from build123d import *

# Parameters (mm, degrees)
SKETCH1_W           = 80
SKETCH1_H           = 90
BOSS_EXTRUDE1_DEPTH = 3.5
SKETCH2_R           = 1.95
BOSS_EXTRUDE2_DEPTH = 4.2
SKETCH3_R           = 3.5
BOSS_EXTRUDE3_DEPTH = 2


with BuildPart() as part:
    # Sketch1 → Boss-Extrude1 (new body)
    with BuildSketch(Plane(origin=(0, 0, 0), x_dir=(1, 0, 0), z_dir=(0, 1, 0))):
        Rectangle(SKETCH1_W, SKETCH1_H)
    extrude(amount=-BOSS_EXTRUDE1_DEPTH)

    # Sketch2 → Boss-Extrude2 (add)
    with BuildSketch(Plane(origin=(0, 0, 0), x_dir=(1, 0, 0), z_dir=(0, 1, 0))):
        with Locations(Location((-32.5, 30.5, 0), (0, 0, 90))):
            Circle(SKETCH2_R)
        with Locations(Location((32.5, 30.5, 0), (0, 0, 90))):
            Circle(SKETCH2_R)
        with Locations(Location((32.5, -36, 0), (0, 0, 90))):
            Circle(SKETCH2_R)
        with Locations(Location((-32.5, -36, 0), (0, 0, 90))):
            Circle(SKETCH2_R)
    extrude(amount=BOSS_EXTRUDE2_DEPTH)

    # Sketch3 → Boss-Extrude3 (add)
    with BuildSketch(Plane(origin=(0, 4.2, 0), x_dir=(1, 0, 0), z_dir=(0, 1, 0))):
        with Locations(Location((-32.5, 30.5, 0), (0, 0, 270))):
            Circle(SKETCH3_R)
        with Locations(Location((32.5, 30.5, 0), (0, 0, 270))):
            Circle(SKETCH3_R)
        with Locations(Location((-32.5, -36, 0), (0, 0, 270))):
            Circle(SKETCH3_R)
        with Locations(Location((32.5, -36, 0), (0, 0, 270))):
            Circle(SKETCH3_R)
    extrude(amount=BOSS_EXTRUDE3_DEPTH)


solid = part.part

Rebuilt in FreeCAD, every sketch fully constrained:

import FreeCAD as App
import Part
import Sketcher

V = App.Vector


def add_polygon(sketch, points):
    """Adds a closed chain of lines whose ends are joined by coincident constraints."""
    first, n = sketch.GeometryCount, len(points)
    for a, b in zip(points, points[1:] + points[:1]):
        sketch.addGeometry(Part.LineSegment(App.Vector(*a, 0), App.Vector(*b, 0)), False)
    for i in range(n):
        sketch.addConstraint(Sketcher.Constraint("Coincident", first + i, 2, first + (i + 1) % n, 1))

doc = App.newDocument("Part")
params = doc.addObject("Spreadsheet::Sheet", "Params")
for row, (alias, value) in enumerate([
    ("sketch1_width", "80 mm"),
    ("sketch1_height", "90 mm"),
    ("pad1_length", "3.5 mm"),
    ("sketch2_diameter", "3.9 mm"),
    ("pad2_length", "4.2 mm"),
    ("sketch3_diameter", "7 mm"),
    ("pad3_length", "2 mm"),
], start=1):
    params.set(f"A{row}", alias)
    params.set(f"B{row}", "=" + value)
    params.setAlias(f"B{row}", alias)

body = doc.addObject("PartDesign::Body", "Body")

# Sketch on XZ plane
sketch1 = body.newObject("Sketcher::SketchObject", "Sketch")
sketch1.AttachmentSupport = (doc.getObject("XZ_Plane"), [""])
sketch1.MapMode = "FlatFace"
add_polygon(sketch1, [(-40, -45), (-40, 45), (40, 45), (40, -45)])  # lines 0-3
sketch1.addConstraint([
    Sketcher.Constraint("Vertical", 0),
    Sketcher.Constraint("Horizontal", 1),
    Sketcher.Constraint("Vertical", 2),
    Sketcher.Constraint("Horizontal", 3),
    Sketcher.Constraint("Symmetric", 0, 2, 2, 2, -1, 1),
    Sketcher.Constraint("DistanceX", 1, 1, 1, 2, 80.0),
    Sketcher.Constraint("DistanceY", 0, 1, 0, 2, 90.0),
])
sketch1.setExpression("Constraints[9]", "Params.sketch1_width")
sketch1.setExpression("Constraints[10]", "Params.sketch1_height")
pad1 = body.newObject("PartDesign::Pad", "Pad")
pad1.Profile = sketch1
pad1.setExpression("Length", "Params.pad1_length")

# Sketch on XZ plane
sketch2 = body.newObject("Sketcher::SketchObject", "Sketch001")
sketch2.AttachmentSupport = (doc.getObject("XZ_Plane"), [""])
sketch2.MapMode = "FlatFace"
sketch2.addGeometry([
    Part.Circle(V(-32.5, -30.5, 0), V(0, 0, 1), 1.95),
    Part.Circle(V(32.5, -30.5, 0), V(0, 0, 1), 1.95),
    Part.Circle(V(32.5, 36, 0), V(0, 0, 1), 1.95),
    Part.Circle(V(-32.5, 36, 0), V(0, 0, 1), 1.95),
], False)
sketch2.addConstraint([
    Sketcher.Constraint("Equal", 0, 1),
    Sketcher.Constraint("Equal", 1, 2),
    Sketcher.Constraint("Equal", 2, 3),
    Sketcher.Constraint("Symmetric", 0, 3, 1, 3, -2),
    Sketcher.Constraint("Symmetric", 2, 3, 3, 3, -2),
    Sketcher.Constraint("Vertical", 1, 3, 2, 3),
    Sketcher.Constraint("Diameter", 0, 3.9),
    Sketcher.Constraint("DistanceY", -1, 1, 2, 3, 36.0),
    Sketcher.Constraint("DistanceX", 0, 3, 1, 3, 65.0),
    Sketcher.Constraint("DistanceY", 0, 3, -1, 1, 30.5),
])
sketch2.setExpression("Constraints[6]", "Params.sketch2_diameter")
pad2 = body.newObject("PartDesign::Pad", "Pad001")
pad2.Profile = sketch2
pad2.setExpression("Length", "Params.pad2_length")
pad2.Reversed = True

# Sketch on XZ plane
sketch3 = body.newObject("Sketcher::SketchObject", "Sketch002")
sketch3.AttachmentSupport = (doc.getObject("XZ_Plane"), [""])
sketch3.MapMode = "FlatFace"
sketch3.AttachmentOffset = App.Placement(V(0, 0, -4.2), App.Rotation())
sketch3.addGeometry([
    Part.Circle(V(-32.5, -30.5, 0), V(0, 0, 1), 3.5),
    Part.Circle(V(32.5, -30.5, 0), V(0, 0, 1), 3.5),
    Part.Circle(V(-32.5, 36, 0), V(0, 0, 1), 3.5),
    Part.Circle(V(32.5, 36, 0), V(0, 0, 1), 3.5),
], False)
sketch3.addConstraint([
    Sketcher.Constraint("Equal", 0, 1),
    Sketcher.Constraint("Equal", 1, 2),
    Sketcher.Constraint("Equal", 2, 3),
    Sketcher.Constraint("Symmetric", 0, 3, 1, 3, -2),
    Sketcher.Constraint("Symmetric", 2, 3, 3, 3, -2),
    Sketcher.Constraint("Vertical", 0, 3, 2, 3),
    Sketcher.Constraint("Diameter", 0, 7.0),
    Sketcher.Constraint("DistanceY", -1, 1, 2, 3, 36.0),
    Sketcher.Constraint("DistanceX", 0, 3, 1, 3, 65.0),
    Sketcher.Constraint("DistanceY", 0, 3, -1, 1, 30.5),
])
sketch3.setExpression("Constraints[6]", "Params.sketch3_diameter")
pad3 = body.newObject("PartDesign::Pad", "Pad002")
pad3.Profile = sketch3
pad3.setExpression("Length", "Params.pad3_length")
pad3.Reversed = True

doc.recompute()
